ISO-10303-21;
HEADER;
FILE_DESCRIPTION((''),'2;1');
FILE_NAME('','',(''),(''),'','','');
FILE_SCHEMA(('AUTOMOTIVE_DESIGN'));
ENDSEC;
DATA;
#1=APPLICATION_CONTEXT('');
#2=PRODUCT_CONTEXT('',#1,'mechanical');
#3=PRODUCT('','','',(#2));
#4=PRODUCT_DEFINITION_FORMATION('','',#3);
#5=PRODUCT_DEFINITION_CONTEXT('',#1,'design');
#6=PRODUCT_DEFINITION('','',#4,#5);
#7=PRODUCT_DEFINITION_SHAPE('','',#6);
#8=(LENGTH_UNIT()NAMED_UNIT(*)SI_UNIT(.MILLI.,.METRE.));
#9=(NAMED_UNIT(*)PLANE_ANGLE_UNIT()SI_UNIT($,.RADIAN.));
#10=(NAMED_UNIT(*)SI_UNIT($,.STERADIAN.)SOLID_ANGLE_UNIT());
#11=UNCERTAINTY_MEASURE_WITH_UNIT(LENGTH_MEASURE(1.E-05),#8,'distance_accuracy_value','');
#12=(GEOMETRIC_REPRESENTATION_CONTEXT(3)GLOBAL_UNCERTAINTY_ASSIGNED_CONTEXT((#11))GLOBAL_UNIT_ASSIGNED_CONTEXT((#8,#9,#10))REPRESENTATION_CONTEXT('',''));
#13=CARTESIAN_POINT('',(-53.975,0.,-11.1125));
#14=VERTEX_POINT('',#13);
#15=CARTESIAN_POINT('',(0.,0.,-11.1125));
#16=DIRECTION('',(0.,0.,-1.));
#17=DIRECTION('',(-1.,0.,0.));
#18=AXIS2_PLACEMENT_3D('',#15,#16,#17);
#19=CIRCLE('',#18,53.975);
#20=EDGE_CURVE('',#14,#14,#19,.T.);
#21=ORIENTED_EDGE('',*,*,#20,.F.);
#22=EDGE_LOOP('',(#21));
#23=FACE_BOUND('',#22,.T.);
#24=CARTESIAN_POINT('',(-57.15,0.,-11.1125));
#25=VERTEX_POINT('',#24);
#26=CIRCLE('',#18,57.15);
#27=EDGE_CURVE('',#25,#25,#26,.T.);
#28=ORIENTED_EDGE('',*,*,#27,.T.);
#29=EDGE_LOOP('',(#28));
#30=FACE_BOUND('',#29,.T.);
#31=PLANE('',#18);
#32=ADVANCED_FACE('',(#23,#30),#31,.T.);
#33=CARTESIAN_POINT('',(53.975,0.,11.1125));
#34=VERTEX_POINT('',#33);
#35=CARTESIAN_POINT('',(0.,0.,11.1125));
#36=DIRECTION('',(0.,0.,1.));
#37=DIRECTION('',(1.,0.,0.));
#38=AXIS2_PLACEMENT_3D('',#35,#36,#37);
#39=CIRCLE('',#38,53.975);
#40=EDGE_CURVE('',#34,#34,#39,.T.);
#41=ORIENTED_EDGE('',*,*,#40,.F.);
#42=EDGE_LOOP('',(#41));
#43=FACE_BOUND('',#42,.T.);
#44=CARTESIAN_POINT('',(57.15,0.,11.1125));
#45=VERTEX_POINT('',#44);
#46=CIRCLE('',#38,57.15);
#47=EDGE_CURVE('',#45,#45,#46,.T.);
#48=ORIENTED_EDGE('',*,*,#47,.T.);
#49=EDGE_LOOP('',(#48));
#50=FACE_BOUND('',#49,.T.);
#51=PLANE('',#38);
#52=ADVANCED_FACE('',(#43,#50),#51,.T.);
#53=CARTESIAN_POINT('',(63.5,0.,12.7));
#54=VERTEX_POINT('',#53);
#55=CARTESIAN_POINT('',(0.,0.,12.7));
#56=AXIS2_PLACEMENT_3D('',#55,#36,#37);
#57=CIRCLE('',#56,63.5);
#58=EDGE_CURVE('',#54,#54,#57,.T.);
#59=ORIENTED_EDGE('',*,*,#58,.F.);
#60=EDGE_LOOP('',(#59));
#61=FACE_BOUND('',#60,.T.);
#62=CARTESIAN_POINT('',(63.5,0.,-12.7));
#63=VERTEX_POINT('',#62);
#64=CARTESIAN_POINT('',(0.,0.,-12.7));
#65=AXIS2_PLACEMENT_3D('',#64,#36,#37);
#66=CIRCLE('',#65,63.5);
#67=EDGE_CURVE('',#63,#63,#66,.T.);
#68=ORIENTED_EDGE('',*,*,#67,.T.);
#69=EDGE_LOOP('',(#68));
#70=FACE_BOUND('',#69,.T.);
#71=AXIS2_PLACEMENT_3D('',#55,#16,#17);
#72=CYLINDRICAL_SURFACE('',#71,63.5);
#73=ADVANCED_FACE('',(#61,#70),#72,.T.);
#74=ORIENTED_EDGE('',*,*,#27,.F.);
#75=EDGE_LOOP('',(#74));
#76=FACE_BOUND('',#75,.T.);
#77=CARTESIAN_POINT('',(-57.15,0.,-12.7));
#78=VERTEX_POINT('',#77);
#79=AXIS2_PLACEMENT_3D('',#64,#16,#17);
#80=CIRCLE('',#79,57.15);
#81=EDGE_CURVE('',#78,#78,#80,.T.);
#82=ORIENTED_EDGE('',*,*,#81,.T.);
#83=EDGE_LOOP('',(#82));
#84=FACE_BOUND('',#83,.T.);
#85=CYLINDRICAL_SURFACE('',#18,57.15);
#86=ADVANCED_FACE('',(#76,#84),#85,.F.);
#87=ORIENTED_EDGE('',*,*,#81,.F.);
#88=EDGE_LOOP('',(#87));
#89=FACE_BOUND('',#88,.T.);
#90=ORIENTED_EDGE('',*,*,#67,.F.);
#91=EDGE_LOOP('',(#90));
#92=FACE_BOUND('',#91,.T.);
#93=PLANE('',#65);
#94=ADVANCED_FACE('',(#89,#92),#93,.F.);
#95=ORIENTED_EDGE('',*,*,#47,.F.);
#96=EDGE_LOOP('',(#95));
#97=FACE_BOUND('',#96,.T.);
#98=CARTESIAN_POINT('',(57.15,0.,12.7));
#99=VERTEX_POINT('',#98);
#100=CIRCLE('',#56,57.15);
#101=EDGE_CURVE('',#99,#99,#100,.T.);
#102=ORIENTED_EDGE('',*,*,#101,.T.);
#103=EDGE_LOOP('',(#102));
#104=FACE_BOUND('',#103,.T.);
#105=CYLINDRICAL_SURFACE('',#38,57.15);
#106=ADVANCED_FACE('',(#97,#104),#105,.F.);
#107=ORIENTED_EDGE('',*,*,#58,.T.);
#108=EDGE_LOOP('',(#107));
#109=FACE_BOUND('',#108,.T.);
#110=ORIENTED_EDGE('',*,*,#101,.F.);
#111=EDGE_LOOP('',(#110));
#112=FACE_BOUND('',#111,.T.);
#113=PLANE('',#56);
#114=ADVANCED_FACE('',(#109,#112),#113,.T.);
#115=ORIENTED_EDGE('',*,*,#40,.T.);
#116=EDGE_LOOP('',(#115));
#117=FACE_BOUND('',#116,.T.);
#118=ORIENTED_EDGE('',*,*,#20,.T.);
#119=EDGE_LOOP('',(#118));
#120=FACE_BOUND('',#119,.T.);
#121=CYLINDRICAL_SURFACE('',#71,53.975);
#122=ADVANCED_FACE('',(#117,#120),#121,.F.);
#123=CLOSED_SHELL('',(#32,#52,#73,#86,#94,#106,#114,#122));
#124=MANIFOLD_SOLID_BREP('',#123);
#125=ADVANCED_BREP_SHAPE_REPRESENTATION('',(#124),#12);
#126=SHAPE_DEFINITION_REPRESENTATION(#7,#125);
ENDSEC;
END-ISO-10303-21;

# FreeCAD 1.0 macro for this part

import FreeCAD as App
import Part
import Sketcher
Q = App.Units.Quantity

doc = App.newDocument("Part")
params = doc.addObject("Spreadsheet::Sheet", "Params")
for row, (alias, value) in enumerate([
    ("sketch1_diameter", "5 in"),
    ("sketch1_diameter2", "4.25 in"),
    ("pad1_length", "1 in"),
    ("sketch2_diameter", "4.5 in"),
    ("pocket1_length", "0.0625 in"),
    ("sketch3_diameter", "4.5 in"),
    ("pocket2_length", "0.0625 in"),
], start=1):
    params.set(f"A{row}", alias)
    params.set(f"B{row}", "=" + value)
    params.setAlias(f"B{row}", alias)

body = doc.addObject("PartDesign::Body", "Body")

# Sketch on XY plane
sketch1 = body.newObject("Sketcher::SketchObject", "Sketch")
sketch1.AttachmentSupport = (doc.getObject("XY_Plane"), [""])
sketch1.MapMode = "FlatFace"
sketch1.addGeometry([
    Part.Circle(App.Vector(0, 0, 0), App.Vector(0, 0, 1), 64),
    Part.Circle(App.Vector(0, 0, 0), App.Vector(0, 0, 1), 54),
], False)
sketch1.addConstraint([
    Sketcher.Constraint("Coincident", 0, 3, -1, 1),
    Sketcher.Constraint("Coincident", 1, 3, -1, 1),
    Sketcher.Constraint("Diameter", 0, Q("5 in")),
    Sketcher.Constraint("Diameter", 1, Q("4.25 in")),
])
sketch1.setExpression("Constraints[2]", "Params.sketch1_diameter")
sketch1.setExpression("Constraints[3]", "Params.sketch1_diameter2")
pad1 = body.newObject("PartDesign::Pad", "Pad")
pad1.Profile = sketch1
pad1.setExpression("Length", "Params.pad1_length")
pad1.Midplane = True

# Sketch on XY plane
sketch2 = body.newObject("Sketcher::SketchObject", "Sketch001")
sketch2.AttachmentSupport = (doc.getObject("XY_Plane"), [""])
sketch2.MapMode = "FlatFace"
sketch2.AttachmentOffset = App.Placement(App.Vector(0, 0, 0.5 * 25.4), App.Rotation())
sketch2.addGeometry(Part.Circle(App.Vector(0, 0, 0), App.Vector(0, 0, 1), 57), False)
sketch2.addConstraint([
    Sketcher.Constraint("Coincident", 0, 3, -1, 1),
    Sketcher.Constraint("Diameter", 0, Q("4.5 in")),
])
sketch2.setExpression("Constraints[1]", "Params.sketch2_diameter")
pocket1 = body.newObject("PartDesign::Pocket", "Pocket")
pocket1.Profile = sketch2
pocket1.setExpression("Length", "Params.pocket1_length")

# Sketch on XY plane
sketch3 = body.newObject("Sketcher::SketchObject", "Sketch002")
sketch3.AttachmentSupport = (doc.getObject("XY_Plane"), [""])
sketch3.MapMode = "FlatFace"
sketch3.AttachmentOffset = App.Placement(App.Vector(0, 0, -0.4375 * 25.4), App.Rotation())
sketch3.addGeometry(Part.Circle(App.Vector(0, 0, 0), App.Vector(0, 0, 1), 57), False)
sketch3.addConstraint([
    Sketcher.Constraint("Coincident", 0, 3, -1, 1),
    Sketcher.Constraint("Diameter", 0, Q("4.5 in")),
])
sketch3.setExpression("Constraints[1]", "Params.sketch3_diameter")
pocket2 = body.newObject("PartDesign::Pocket", "Pocket001")
pocket2.Profile = sketch3
pocket2.setExpression("Length", "Params.pocket2_length")

doc.recompute()
